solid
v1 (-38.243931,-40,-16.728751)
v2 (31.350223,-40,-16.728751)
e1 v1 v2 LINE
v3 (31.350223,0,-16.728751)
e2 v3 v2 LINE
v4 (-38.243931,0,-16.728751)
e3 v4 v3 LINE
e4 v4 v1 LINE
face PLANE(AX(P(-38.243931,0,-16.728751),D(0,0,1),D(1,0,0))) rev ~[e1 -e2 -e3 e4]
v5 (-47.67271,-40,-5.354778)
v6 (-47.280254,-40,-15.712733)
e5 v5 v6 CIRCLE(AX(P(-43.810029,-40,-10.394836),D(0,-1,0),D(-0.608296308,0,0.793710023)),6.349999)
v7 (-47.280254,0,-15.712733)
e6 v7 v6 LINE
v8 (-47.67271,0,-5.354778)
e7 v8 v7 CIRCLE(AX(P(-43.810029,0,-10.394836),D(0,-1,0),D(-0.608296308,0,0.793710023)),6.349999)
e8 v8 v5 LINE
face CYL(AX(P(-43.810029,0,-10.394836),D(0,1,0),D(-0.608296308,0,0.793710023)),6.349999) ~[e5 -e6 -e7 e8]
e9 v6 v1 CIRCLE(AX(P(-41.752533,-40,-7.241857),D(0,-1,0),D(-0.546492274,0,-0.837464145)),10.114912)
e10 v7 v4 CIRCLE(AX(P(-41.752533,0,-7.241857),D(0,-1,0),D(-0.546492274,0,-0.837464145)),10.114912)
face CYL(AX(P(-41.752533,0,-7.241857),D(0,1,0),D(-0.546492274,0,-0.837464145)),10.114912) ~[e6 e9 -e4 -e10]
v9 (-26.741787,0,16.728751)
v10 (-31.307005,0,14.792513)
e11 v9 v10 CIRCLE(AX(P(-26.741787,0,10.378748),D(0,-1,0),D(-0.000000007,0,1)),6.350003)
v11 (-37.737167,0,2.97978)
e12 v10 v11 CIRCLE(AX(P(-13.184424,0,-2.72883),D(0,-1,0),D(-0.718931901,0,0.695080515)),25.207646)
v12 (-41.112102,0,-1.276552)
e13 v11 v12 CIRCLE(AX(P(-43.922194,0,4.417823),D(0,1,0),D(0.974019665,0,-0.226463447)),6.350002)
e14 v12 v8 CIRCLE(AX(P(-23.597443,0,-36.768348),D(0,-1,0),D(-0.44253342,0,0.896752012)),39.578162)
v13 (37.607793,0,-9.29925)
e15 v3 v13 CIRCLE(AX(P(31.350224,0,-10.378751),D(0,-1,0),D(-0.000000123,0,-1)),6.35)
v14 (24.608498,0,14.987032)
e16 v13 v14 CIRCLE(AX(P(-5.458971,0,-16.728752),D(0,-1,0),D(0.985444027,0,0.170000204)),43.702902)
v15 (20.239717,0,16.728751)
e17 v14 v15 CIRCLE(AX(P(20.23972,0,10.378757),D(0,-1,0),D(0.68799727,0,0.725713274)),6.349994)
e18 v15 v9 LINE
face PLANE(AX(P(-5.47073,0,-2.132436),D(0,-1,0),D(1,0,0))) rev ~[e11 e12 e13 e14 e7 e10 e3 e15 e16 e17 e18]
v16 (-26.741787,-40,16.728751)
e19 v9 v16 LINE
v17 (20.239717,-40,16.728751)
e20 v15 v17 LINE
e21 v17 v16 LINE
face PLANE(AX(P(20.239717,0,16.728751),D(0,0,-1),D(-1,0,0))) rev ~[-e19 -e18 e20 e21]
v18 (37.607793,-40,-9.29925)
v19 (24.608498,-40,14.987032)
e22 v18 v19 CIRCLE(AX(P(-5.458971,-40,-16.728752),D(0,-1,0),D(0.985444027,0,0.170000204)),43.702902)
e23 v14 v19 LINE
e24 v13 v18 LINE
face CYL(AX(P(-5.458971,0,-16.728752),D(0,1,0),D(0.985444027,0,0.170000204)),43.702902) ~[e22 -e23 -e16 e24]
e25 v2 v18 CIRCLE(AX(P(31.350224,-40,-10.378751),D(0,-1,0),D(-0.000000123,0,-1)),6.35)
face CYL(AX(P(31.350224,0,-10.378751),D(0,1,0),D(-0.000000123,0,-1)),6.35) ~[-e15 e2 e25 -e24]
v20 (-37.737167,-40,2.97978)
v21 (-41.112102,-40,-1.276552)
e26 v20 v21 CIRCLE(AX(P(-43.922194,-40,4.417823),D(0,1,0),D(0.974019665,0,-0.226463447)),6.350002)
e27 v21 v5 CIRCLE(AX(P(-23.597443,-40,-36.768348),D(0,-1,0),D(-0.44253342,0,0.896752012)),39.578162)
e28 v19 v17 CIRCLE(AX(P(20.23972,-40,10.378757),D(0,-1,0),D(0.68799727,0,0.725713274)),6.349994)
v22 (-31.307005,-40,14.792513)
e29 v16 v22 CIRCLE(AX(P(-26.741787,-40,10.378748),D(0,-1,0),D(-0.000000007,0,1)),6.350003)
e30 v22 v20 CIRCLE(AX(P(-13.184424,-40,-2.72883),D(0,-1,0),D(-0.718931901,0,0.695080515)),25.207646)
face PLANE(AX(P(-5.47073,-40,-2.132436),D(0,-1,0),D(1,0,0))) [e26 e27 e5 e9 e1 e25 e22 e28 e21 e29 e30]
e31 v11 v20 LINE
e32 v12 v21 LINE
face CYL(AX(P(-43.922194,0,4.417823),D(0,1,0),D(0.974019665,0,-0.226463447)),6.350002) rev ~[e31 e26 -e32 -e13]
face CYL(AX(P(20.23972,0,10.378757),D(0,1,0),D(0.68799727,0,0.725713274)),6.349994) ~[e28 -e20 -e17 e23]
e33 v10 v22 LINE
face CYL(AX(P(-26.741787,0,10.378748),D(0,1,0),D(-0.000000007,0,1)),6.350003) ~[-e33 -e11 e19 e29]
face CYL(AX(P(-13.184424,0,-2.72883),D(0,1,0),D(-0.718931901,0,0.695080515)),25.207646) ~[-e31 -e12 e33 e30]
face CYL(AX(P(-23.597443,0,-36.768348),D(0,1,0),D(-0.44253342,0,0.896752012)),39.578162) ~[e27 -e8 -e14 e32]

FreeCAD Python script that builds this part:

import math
import FreeCAD as App
import Part
import Sketcher

V = App.Vector
Q = App.Units.Quantity

doc = App.newDocument("Part")
body = doc.addObject("PartDesign::Body", "Body")

sketch1 = body.newObject("Sketcher::SketchObject", "Sketch")
sketch1.AttachmentSupport = (doc.getObject("XZ_Plane"), [""])
sketch1.MapMode = "FlatFace"
sketch1.addGeometry(Part.ArcOfCircle(Part.Circle(V(20.23972, 10.378757, 0), V(0, 0, 1), 6.349994), math.radians(46.528216), math.radians(90.000024)), False)
sketch1.addGeometry(Part.LineSegment(V(20.239717, 16.728751, 0), V(-26.741787, 16.728751, 0)), False)
sketch1.addGeometry(Part.ArcOfCircle(Part.Circle(V(-26.741787, 10.378748, 0), V(0, 0, 1), 6.350003), math.radians(90), math.radians(135.966347)), False)
sketch1.addGeometry(Part.ArcOfCircle(Part.Circle(V(-13.184424, -2.72883, 0), V(0, 0, 1), 25.207646), math.radians(135.966366), math.radians(166.911051)), False)
sketch1.addGeometry(Part.ArcOfCircle(Part.Circle(V(-43.922194, 4.417823, 0), V(0, 0, 1), 6.350002), math.radians(-63.734326), math.radians(-13.088949)), False)
sketch1.addGeometry(Part.ArcOfCircle(Part.Circle(V(-23.597443, -36.768348, 0), V(0, 0, 1), 39.578162), math.radians(116.265635), math.radians(127.466449)), False)
sketch1.addGeometry(Part.ArcOfCircle(Part.Circle(V(-43.810029, -10.394836, 0), V(0, 0, 1), 6.349999), math.radians(127.466417), math.radians(236.873305)), False)
sketch1.addGeometry(Part.ArcOfCircle(Part.Circle(V(-41.752533, -7.241857, 0), V(0, 0, 1), 10.114912), math.radians(-123.126699), math.radians(-69.703757)), False)
sketch1.addGeometry(Part.LineSegment(V(-38.243931, -16.728751, 0), V(31.350223, -16.728751, 0)), False)
sketch1.addGeometry(Part.ArcOfCircle(Part.Circle(V(31.350224, -10.378751, 0), V(0, 0, 1), 6.35), math.radians(-90.000007), math.radians(9.787832)), False)
sketch1.addGeometry(Part.ArcOfCircle(Part.Circle(V(-5.458971, -16.728752, 0), V(0, 0, 1), 43.702902), math.radians(9.787831), math.radians(46.528232)), False)
sketch1.addConstraint(Sketcher.Constraint("Coincident", 0, 2, 1, 1))
sketch1.addConstraint(Sketcher.Constraint("Coincident", 1, 2, 2, 1))
sketch1.addConstraint(Sketcher.Constraint("Coincident", 2, 2, 3, 1))
sketch1.addConstraint(Sketcher.Constraint("Coincident", 3, 2, 4, 2))
sketch1.addConstraint(Sketcher.Constraint("Coincident", 4, 1, 5, 1))
sketch1.addConstraint(Sketcher.Constraint("Coincident", 5, 2, 6, 1))
sketch1.addConstraint(Sketcher.Constraint("Coincident", 6, 2, 7, 1))
sketch1.addConstraint(Sketcher.Constraint("Coincident", 7, 2, 8, 1))
sketch1.addConstraint(Sketcher.Constraint("Coincident", 8, 2, 9, 1))
sketch1.addConstraint(Sketcher.Constraint("Coincident", 9, 2, 10, 1))
sketch1.addConstraint(Sketcher.Constraint("Coincident", 10, 2, 0, 1))
sketch1.addConstraint(Sketcher.Constraint("Horizontal", 1))
sketch1.addConstraint(Sketcher.Constraint("Horizontal", 8))
sketch1.addConstraint(Sketcher.Constraint("Radius", 2, Q("0.2500001 in")))
sketch1.addConstraint(Sketcher.Constraint("Radius", 4, Q("0.2500001 in")))
sketch1.addConstraint(Sketcher.Constraint("Radius", 6, Q("0.25 in")))
sketch1.addConstraint(Sketcher.Constraint("Radius", 9, Q("0.25 in")))
sketch1.addConstraint(Sketcher.Constraint("DistanceY", 10, 3, 9, 3, Q("0.25 in")))
sketch1.addConstraint(Sketcher.Constraint("Radius", 5, Q("39.578162 mm")))
sketch1.addConstraint(Sketcher.Constraint("Radius", 0, Q("6.349994 mm")))
sketch1.addConstraint(Sketcher.Constraint("Radius", 3, Q("25.207646 mm")))
sketch1.addConstraint(Sketcher.Constraint("Radius", 7, Q("10.114912 mm")))
sketch1.addConstraint(Sketcher.Constraint("Radius", 10, Q("43.702902 mm")))
sketch1.addConstraint(Sketcher.Constraint("DistanceY", 9, 3, 9, 2, Q("0.0425001 in")))
sketch1.addConstraint(Sketcher.Constraint("DistanceX", 4, 1, -1, 1, Q("41.112102 mm")))
sketch1.addConstraint(Sketcher.Constraint("DistanceY", 9, 3, 2, 3, Q("20.7575 mm")))
sketch1.addConstraint(Sketcher.Constraint("DistanceY", 4, 1, 2, 3, Q("11.6553 mm")))
sketch1.addConstraint(Sketcher.Constraint("DistanceY", 5, 2, 4, 3, Q("9.772601 mm")))
sketch1.addConstraint(Sketcher.Constraint("DistanceX", 7, 3, 7, 2, Q("3.508602 mm")))
sketch1.addConstraint(Sketcher.Constraint("DistanceX", 1, 2, 1, 1, Q("46.981504 mm")))
sketch1.addConstraint(Sketcher.Constraint("DistanceX", 8, 1, 8, 2, Q("69.594154 mm")))
sketch1.addConstraint(Sketcher.Constraint("DistanceX", -1, 1, 0, 3, Q("20.23972 mm")))
sketch1.addConstraint(Sketcher.Constraint("DistanceY", -1, 1, 2, 3, Q("10.378748 mm")))
sketch1.addConstraint(Sketcher.Constraint("DistanceY", 3, 3, -1, 1, Q("2.72883 mm")))
sketch1.addConstraint(Sketcher.Constraint("DistanceY", 5, 3, -1, 1, Q("36.768348 mm")))
sketch1.addConstraint(Sketcher.Constraint("DistanceX", 6, 3, -1, 1, Q("43.810029 mm")))
sketch1.addConstraint(Sketcher.Constraint("DistanceY", -1, 1, 3, 2, Q("2.97978 mm")))
sketch1.addConstraint(Sketcher.Constraint("DistanceX", 5, 2, -1, 1, Q("47.67271 mm")))
sketch1.addConstraint(Sketcher.Constraint("DistanceY", -1, 1, 10, 2, Q("14.987032 mm")))
sketch1.addConstraint(Sketcher.Constraint("DistanceX", 3, 3, 0, 2, Q("33.424141 mm")))
sketch1.addConstraint(Sketcher.Constraint("DistanceX", 2, 2, 1, 2, Q("4.565218 mm")))
sketch1.addConstraint(Sketcher.Constraint("DistanceX", 6, 2, 7, 3, Q("5.527721 mm")))
pad1 = body.newObject("PartDesign::Pad", "Pad")
pad1.Profile = sketch1
pad1.Length = 40

doc.recompute()
